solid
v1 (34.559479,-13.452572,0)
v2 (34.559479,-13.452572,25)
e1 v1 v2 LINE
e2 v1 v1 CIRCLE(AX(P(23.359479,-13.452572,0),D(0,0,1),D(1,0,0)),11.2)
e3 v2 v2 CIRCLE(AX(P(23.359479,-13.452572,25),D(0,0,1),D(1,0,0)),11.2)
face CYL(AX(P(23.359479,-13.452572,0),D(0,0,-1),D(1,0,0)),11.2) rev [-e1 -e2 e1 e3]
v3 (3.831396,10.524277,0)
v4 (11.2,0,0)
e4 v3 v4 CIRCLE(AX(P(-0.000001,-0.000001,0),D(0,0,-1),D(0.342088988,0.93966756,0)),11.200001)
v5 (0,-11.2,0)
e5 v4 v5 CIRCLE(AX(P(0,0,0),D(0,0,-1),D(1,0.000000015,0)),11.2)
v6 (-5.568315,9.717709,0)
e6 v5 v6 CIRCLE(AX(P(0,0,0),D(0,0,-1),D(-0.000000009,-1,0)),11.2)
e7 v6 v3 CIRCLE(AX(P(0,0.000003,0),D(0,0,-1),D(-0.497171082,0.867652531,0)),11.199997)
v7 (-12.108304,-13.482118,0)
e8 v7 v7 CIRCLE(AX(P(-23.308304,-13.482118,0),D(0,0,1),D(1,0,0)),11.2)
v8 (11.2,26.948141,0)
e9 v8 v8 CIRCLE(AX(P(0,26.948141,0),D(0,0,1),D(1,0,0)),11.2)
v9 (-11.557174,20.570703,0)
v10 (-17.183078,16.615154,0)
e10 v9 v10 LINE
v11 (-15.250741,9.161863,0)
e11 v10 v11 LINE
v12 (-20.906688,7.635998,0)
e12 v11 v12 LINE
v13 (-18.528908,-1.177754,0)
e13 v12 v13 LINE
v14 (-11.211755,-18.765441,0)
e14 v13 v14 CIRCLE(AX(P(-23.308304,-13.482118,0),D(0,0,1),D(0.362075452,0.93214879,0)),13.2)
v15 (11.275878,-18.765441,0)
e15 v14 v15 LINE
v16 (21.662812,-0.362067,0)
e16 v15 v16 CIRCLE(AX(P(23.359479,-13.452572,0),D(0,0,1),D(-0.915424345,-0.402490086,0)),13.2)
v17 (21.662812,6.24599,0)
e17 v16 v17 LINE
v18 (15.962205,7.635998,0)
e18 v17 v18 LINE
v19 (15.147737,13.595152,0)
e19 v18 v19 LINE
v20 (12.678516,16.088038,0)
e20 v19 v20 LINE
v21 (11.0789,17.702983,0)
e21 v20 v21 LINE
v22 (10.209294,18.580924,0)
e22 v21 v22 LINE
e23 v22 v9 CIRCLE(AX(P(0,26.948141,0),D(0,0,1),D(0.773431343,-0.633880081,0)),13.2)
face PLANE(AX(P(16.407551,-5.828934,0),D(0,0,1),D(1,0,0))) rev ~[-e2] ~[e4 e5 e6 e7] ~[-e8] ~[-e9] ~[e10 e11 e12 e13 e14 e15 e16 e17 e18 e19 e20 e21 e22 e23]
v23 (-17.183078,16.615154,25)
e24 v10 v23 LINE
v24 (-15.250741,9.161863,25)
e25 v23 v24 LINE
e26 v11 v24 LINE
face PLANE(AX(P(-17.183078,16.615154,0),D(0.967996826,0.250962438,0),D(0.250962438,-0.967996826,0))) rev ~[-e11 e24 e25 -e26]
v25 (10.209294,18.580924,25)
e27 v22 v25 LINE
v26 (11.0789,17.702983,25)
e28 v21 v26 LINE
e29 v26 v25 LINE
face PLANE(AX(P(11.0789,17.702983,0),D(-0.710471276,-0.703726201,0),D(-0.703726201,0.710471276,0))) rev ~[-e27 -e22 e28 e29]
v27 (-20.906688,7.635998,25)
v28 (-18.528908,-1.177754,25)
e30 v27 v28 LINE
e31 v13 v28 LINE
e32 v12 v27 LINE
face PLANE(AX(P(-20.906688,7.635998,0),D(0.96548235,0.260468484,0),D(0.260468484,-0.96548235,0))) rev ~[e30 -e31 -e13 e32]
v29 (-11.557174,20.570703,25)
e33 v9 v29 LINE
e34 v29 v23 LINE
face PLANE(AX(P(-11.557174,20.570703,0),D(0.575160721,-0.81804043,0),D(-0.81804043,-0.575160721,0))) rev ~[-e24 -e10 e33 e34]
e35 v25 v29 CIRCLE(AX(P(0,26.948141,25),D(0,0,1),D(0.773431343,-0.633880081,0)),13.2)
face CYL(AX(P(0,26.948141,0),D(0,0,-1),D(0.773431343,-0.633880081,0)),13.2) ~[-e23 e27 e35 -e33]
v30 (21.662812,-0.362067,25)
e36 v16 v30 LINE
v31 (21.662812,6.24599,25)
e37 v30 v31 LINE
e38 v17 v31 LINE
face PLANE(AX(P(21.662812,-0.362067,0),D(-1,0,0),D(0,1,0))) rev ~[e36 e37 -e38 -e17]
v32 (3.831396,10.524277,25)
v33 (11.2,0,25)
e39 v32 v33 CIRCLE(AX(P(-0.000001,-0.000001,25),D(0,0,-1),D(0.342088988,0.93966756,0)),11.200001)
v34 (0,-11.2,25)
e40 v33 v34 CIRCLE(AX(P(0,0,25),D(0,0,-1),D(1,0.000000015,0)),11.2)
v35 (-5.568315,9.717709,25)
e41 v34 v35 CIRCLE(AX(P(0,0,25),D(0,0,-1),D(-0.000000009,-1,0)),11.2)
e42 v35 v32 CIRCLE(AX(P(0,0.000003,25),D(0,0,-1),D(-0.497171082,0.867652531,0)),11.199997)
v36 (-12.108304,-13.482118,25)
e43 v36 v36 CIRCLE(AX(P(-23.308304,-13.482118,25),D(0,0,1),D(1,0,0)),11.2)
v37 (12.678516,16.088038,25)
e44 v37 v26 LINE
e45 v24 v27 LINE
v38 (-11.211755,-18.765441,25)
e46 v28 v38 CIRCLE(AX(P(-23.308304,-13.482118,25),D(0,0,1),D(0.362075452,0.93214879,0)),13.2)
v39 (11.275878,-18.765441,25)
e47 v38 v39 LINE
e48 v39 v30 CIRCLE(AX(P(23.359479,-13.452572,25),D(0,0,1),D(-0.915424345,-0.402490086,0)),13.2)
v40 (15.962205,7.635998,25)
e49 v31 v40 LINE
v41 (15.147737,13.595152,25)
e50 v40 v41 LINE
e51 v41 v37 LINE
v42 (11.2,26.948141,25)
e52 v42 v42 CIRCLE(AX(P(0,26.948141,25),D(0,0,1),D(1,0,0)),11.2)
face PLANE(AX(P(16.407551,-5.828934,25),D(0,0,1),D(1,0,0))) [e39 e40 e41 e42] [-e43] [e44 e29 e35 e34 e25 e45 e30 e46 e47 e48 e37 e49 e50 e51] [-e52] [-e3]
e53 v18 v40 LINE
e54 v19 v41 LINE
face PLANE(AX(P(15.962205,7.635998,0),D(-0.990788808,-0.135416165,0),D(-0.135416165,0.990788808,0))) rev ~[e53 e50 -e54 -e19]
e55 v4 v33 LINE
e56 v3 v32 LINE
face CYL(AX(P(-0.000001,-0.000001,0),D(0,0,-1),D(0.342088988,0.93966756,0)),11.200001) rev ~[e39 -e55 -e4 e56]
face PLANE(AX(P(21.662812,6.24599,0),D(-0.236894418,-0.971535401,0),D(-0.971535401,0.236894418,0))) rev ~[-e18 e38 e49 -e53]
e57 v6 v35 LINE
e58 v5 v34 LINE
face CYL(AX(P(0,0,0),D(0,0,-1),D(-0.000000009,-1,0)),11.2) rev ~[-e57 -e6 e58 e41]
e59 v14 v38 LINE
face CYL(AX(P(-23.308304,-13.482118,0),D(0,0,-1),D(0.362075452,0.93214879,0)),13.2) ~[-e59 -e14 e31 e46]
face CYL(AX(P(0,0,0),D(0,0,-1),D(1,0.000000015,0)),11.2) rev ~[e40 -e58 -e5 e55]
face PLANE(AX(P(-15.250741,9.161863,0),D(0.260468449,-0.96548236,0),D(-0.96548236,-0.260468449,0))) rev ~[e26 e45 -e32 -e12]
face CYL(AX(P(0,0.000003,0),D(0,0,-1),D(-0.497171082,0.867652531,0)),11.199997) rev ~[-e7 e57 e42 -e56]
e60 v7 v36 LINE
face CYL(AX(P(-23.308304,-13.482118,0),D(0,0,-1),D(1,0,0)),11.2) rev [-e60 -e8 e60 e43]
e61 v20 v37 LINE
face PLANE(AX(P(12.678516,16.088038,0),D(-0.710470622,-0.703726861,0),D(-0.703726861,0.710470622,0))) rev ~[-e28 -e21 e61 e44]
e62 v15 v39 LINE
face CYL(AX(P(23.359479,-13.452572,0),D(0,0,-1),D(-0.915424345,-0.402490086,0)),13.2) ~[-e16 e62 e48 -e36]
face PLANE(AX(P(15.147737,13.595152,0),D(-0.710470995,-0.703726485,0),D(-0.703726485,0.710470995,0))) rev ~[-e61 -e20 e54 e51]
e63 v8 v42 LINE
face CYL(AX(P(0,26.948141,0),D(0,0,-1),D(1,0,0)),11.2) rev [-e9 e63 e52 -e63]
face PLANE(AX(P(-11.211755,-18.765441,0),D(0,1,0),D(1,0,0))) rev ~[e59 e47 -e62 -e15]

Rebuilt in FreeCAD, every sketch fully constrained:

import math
import FreeCAD as App
import Part
import Sketcher
from FreeCAD import Vector
Q = App.Units.Quantity

doc = App.newDocument("Part")
params = doc.addObject("Spreadsheet::Sheet", "Params")
for row, (alias, value) in enumerate([
    ("sketch1_diameter", "22.4 mm"),
    ("sketch1_radius", "13.2 mm"),
    ("pad1_length", "25 mm"),
], start=1):
    params.set(f"A{row}", alias)
    params.set(f"B{row}", "=" + value)
    params.setAlias(f"B{row}", alias)

body = doc.addObject("PartDesign::Body", "Body")

sketch1 = doc.addObject("Sketcher::SketchObject", "Sketch")
body.addObject(sketch1)
sketch1.AttachmentSupport = (doc.XY_Plane, [""])
sketch1.MapMode = "FlatFace"
sketch1.addGeometry([
    Part.ArcOfCircle(Part.Circle(Vector(0, 26.9, 0), Vector(0, 0, 1), 13.2), math.radians(-39), math.radians(209)),
    Part.LineSegment(Vector(-11.6, 20.6, 0), Vector(-17.2, 16.6, 0)),
    Part.LineSegment(Vector(-17.2, 16.6, 0), Vector(-15.3, 9.2, 0)),
    Part.LineSegment(Vector(-15.3, 9.2, 0), Vector(-20.9, 7.6, 0)),
    Part.LineSegment(Vector(-20.9, 7.6, 0), Vector(-18.5, -1.2, 0)),
    Part.ArcOfCircle(Part.Circle(Vector(-23.3, -13.5, 0), Vector(0, 0, 1), 13.2), math.radians(69), math.radians(336)),
    Part.LineSegment(Vector(-11.2, -18.8, 0), Vector(11.3, -18.8, 0)),
    Part.ArcOfCircle(Part.Circle(Vector(23.4, -13.5, 0), Vector(0, 0, 1), 13.2), math.radians(-156), math.radians(97)),
    Part.LineSegment(Vector(21.7, -0.4, 0), Vector(21.7, 6.2, 0)),
    Part.LineSegment(Vector(21.7, 6.2, 0), Vector(16, 7.6, 0)),
    Part.LineSegment(Vector(16, 7.6, 0), Vector(15.1, 13.6, 0)),
    Part.LineSegment(Vector(15.1, 13.6, 0), Vector(12.7, 16.1, 0)),
    Part.LineSegment(Vector(12.7, 16.1, 0), Vector(11.1, 17.7, 0)),
    Part.LineSegment(Vector(11.1, 17.7, 0), Vector(10.2, 18.6, 0)),
    Part.Circle(Vector(-23.3, -13.5, 0), Vector(0, 0, 1), 11.2),
    Part.ArcOfCircle(Part.Circle(Vector(0, 0, 0), Vector(0, 0, 1), 11.2), math.radians(0), math.radians(70)),
    Part.ArcOfCircle(Part.Circle(Vector(0, 0, 0), Vector(0, 0, 1), 11.2), math.radians(-90), math.radians(0)),
    Part.ArcOfCircle(Part.Circle(Vector(0, 0, 0), Vector(0, 0, 1), 11.2), math.radians(120), math.radians(270)),
    Part.ArcOfCircle(Part.Circle(Vector(0, 0, 0), Vector(0, 0, 1), 11.2), math.radians(70), math.radians(120)),
    Part.Circle(Vector(23.4, -13.5, 0), Vector(0, 0, 1), 11.2),
    Part.Circle(Vector(0, 26.9, 0), Vector(0, 0, 1), 11.2),
], False)
sketch1.addConstraint([
    Sketcher.Constraint("Coincident", 0, 2, 1, 1),
    Sketcher.Constraint("Coincident", 1, 2, 2, 1),
    Sketcher.Constraint("Coincident", 2, 2, 3, 1),
    Sketcher.Constraint("Coincident", 3, 2, 4, 1),
    Sketcher.Constraint("Coincident", 4, 2, 5, 1),
    Sketcher.Constraint("Coincident", 5, 2, 6, 1),
    Sketcher.Constraint("Coincident", 6, 2, 7, 1),
    Sketcher.Constraint("Coincident", 7, 2, 8, 1),
    Sketcher.Constraint("Coincident", 8, 2, 9, 1),
    Sketcher.Constraint("Coincident", 9, 2, 10, 1),
    Sketcher.Constraint("Coincident", 10, 2, 11, 1),
    Sketcher.Constraint("Coincident", 11, 2, 12, 1),
    Sketcher.Constraint("Coincident", 12, 2, 13, 1),
    Sketcher.Constraint("Coincident", 13, 2, 0, 1),
    Sketcher.Constraint("Tangent", 15, 1, 16, 2),
    Sketcher.Constraint("Tangent", 16, 1, 17, 2),
    Sketcher.Constraint("Tangent", 17, 1, 18, 2),
    Sketcher.Constraint("Tangent", 18, 1, 15, 2),
    Sketcher.Constraint("Horizontal", 6),
    Sketcher.Constraint("Vertical", 8),
    Sketcher.Constraint("Coincident", 15, 3, -1, 1),
    Sketcher.Constraint("Coincident", 14, 3, 5, 3),
    Sketcher.Constraint("Coincident", 19, 3, 7, 3),
    Sketcher.Constraint("Coincident", 20, 3, 0, 3),
    Sketcher.Constraint("Equal", 0, 5),
    Sketcher.Constraint("Equal", 5, 7),
    Sketcher.Constraint("Equal", 14, 15),
    Sketcher.Constraint("Equal", 15, 16),
    Sketcher.Constraint("Equal", 17, 19),
    Sketcher.Constraint("Equal", 19, 20),
    Sketcher.Constraint("PointOnObject", 0, 3, -2),
    Sketcher.Constraint("PointOnObject", 15, 1, -1),
    Sketcher.Constraint("PointOnObject", 16, 1, -2),
    Sketcher.Constraint("Perpendicular", 3, 4),
    Sketcher.Constraint("Parallel", 11, 12),
    Sketcher.Constraint("Parallel", 12, 13),
    Sketcher.Constraint("Horizontal", 3, 2, 9, 2),
    Sketcher.Constraint("Diameter", 14, Q("22.4 mm")),
    Sketcher.Constraint("Radius", 0, Q("13.2 mm")),
    Sketcher.Constraint("DistanceY", 16, 3, 9, 2, Q("7.635998 mm")),
    Sketcher.Constraint("DistanceX", -1, 1, 12, 2, Q("11.0789 mm")),
    Sketcher.Constraint("DistanceY", 18, 3, 0, 2, Q("20.5707 mm")),
    Sketcher.Constraint("DistanceX", 6, 2, 19, 3, Q("12.083601 mm")),
    Sketcher.Constraint("DistanceX", 18, 1, 13, 2, Q("6.377898 mm")),
    Sketcher.Constraint("Distance", 4, Q("9.128859 mm")),
    Sketcher.Constraint("Distance", 11, Q("3.508779 mm")),
    Sketcher.Constraint("DistanceX", 6, 1, 6, 2, Q("22.487633 mm")),
    Sketcher.Constraint("DistanceY", 8, 1, 8, 2, Q("6.608057 mm")),
    Sketcher.Constraint("DistanceY", -1, 1, 0, 3, Q("26.948141 mm")),
    Sketcher.Constraint("DistanceX", -1, 1, 7, 3, Q("23.359479 mm")),
    Sketcher.Constraint("DistanceY", 7, 3, -1, 1, Q("13.452572 mm")),
    Sketcher.Constraint("DistanceX", 2, 2, -1, 1, Q("15.250741 mm")),
    Sketcher.Constraint("DistanceX", 4, 2, -1, 1, Q("18.528908 mm")),
    Sketcher.Constraint("DistanceX", -1, 1, 8, 2, Q("21.662812 mm")),
    Sketcher.Constraint("DistanceY", -1, 1, 11, 2, Q("16.088038 mm")),
    Sketcher.Constraint("DistanceY", -1, 1, 17, 1, Q("9.717709 mm")),
    Sketcher.Constraint("DistanceY", 5, 3, 0, 3, Q("40.430259 mm")),
    Sketcher.Constraint("DistanceY", 1, 2, 0, 2, Q("3.955549 mm")),
    Sketcher.Constraint("DistanceX", 1, 2, 0, 3, Q("17.183078 mm")),
    Sketcher.Constraint("DistanceX", 10, 2, 9, 2, Q("0.814468 mm")),
    Sketcher.Constraint("DistanceY", 7, 2, 10, 2, Q("13.957219 mm")),
    Sketcher.Constraint("DistanceY", 10, 2, 12, 2, Q("4.107831 mm")),
])
sketch1.setExpression("Constraints[37]", "Params.sketch1_diameter")
sketch1.setExpression("Constraints[38]", "Params.sketch1_radius")
pad1 = doc.addObject("PartDesign::Pad", "Pad")
body.addObject(pad1)
pad1.Profile = sketch1
pad1.setExpression("Length", "Params.pad1_length")

doc.recompute()
